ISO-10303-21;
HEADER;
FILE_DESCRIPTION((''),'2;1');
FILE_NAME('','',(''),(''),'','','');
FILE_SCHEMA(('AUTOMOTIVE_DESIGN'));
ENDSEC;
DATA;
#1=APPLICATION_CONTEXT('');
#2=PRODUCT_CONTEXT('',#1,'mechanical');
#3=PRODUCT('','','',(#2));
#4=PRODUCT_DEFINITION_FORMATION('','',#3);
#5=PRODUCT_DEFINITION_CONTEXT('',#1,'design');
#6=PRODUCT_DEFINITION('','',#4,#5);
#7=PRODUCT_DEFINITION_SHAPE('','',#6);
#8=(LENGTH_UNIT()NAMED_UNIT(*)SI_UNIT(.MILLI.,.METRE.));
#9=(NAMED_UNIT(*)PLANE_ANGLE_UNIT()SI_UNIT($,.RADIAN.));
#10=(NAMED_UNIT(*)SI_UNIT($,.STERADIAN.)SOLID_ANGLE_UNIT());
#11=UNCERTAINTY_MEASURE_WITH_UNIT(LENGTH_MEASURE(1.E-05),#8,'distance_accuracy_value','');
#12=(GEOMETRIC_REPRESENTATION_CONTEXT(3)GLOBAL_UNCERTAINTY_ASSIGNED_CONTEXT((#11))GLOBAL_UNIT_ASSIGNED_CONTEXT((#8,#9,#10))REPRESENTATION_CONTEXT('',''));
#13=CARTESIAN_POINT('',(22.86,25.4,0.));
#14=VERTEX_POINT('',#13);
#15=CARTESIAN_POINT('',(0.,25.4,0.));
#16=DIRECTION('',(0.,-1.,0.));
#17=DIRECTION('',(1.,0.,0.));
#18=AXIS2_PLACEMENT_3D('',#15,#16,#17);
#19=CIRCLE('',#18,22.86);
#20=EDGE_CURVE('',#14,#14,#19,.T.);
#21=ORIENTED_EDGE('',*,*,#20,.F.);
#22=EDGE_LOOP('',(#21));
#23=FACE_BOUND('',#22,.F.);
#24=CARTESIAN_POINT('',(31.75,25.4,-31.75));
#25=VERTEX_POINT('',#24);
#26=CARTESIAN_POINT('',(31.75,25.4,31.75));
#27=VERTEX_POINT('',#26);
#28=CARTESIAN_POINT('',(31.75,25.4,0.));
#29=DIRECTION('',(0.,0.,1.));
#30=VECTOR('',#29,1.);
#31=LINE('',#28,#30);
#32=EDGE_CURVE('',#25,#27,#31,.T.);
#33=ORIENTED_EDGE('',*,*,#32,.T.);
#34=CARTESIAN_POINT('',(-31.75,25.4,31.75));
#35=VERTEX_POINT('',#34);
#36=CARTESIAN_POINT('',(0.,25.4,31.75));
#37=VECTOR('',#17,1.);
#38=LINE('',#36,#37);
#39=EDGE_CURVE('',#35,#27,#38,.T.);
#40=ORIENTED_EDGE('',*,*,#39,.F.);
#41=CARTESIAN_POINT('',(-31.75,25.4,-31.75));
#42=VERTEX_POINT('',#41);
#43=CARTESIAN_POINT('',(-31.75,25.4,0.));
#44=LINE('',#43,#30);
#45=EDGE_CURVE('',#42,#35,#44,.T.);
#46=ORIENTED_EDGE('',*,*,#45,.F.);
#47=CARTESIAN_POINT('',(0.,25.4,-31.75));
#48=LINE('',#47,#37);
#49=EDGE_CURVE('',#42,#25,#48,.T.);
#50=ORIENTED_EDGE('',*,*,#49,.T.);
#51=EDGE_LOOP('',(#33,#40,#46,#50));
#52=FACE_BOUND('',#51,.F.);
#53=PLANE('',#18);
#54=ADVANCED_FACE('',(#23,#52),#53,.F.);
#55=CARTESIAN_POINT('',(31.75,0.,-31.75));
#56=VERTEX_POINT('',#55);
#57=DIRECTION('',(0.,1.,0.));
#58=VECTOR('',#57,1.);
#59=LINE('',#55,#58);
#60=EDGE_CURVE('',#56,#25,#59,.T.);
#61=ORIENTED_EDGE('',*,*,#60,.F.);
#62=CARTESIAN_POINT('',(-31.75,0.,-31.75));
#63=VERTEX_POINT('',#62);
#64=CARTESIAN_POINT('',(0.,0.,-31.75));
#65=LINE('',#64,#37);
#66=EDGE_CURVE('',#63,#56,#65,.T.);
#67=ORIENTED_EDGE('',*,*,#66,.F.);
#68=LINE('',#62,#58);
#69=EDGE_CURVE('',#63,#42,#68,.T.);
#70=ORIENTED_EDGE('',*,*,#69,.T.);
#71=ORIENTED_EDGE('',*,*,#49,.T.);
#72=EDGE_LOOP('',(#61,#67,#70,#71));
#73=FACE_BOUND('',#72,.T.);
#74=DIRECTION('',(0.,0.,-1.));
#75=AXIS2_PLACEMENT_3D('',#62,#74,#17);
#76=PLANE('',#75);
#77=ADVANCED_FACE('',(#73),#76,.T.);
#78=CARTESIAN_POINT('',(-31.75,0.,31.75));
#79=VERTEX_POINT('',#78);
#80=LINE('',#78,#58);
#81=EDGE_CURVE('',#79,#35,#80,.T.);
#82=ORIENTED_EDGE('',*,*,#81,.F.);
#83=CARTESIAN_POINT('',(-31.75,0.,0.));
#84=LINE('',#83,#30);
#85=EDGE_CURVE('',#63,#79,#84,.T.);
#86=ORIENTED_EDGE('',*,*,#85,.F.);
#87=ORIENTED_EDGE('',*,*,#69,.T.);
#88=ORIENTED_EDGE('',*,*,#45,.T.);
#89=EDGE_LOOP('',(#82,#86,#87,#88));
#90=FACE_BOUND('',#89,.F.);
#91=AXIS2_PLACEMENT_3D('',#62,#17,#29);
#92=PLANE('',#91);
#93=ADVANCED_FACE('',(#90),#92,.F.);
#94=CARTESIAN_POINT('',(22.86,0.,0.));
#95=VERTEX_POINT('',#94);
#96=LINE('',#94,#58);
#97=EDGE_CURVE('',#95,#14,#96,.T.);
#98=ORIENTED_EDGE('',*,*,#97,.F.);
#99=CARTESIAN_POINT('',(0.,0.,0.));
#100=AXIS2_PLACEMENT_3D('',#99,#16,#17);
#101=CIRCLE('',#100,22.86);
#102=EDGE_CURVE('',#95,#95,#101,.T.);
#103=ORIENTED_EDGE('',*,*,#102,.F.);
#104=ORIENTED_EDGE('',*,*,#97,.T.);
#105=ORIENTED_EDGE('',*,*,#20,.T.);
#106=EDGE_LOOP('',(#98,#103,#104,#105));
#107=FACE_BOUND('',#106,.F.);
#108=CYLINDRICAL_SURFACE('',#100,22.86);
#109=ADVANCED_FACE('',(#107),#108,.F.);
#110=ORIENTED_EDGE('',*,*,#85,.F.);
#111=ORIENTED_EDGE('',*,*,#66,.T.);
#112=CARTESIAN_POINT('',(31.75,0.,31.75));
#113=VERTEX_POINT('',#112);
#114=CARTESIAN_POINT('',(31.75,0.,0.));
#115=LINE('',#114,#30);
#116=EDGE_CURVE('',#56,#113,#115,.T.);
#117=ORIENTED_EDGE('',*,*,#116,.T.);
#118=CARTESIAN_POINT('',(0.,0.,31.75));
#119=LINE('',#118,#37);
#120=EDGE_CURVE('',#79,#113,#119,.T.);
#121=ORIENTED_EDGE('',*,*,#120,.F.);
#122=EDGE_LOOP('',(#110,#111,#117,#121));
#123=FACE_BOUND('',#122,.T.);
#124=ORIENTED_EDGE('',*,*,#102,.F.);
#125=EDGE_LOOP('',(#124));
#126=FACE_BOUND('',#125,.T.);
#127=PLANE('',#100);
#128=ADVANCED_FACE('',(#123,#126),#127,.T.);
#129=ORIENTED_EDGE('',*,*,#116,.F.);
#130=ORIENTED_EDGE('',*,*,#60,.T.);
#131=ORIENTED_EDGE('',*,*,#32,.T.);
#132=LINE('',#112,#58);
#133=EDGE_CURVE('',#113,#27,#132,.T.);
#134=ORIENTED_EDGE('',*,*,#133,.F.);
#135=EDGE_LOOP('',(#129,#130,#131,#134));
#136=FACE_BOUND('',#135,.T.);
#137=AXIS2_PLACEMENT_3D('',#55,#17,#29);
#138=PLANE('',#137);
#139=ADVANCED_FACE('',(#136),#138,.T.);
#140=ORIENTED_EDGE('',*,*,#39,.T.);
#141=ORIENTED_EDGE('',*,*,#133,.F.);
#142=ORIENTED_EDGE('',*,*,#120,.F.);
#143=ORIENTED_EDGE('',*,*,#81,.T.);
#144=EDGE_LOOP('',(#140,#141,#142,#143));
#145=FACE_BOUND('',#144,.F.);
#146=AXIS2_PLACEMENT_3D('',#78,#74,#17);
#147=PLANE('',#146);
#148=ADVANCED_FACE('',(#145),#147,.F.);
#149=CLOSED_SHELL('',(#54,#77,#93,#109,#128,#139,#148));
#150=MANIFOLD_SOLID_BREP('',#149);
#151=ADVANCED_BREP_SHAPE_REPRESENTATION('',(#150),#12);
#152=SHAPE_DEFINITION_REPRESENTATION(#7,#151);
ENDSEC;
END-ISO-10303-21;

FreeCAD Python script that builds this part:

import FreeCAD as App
import Part
import Sketcher
from FreeCAD import Vector
Q = App.Units.Quantity


def add_polygon(sketch, points):
    """Adds a closed chain of lines whose ends are joined by coincident constraints."""
    first, n = sketch.GeometryCount, len(points)
    for a, b in zip(points, points[1:] + points[:1]):
        sketch.addGeometry(Part.LineSegment(App.Vector(*a, 0), App.Vector(*b, 0)), False)
    for i in range(n):
        sketch.addConstraint(Sketcher.Constraint("Coincident", first + i, 2, first + (i + 1) % n, 1))

doc = App.newDocument("Part")
body = doc.addObject("PartDesign::Body", "Body")

# Sketch on XZ plane
sketch1 = body.newObject("Sketcher::SketchObject", "Sketch")
sketch1.AttachmentSupport = (doc.getObject("XZ_Plane"), [""])
sketch1.MapMode = "FlatFace"
add_polygon(sketch1, [(-32, 32), (-32, -32), (32, -32), (32, 32)])  # lines 0-3
sketch1.addGeometry(Part.Circle(Vector(0, 0, 0), Vector(0, 0, 1), 23), False)  # 4
sketch1.addConstraint([
    Sketcher.Constraint("Vertical", 0),
    Sketcher.Constraint("Horizontal", 1),
    Sketcher.Constraint("Vertical", 2),
    Sketcher.Constraint("Horizontal", 3),
    Sketcher.Constraint("Coincident", 4, 3, -1, 1),
    Sketcher.Constraint("Symmetric", 0, 2, 2, 2, -1, 1),
    Sketcher.Constraint("Equal", 3, 0),
    Sketcher.Constraint("Diameter", 4, Q("1.8 in")),
    Sketcher.Constraint("DistanceX", 1, 1, 1, 2, Q("2.5 in")),
])
pad1 = body.newObject("PartDesign::Pad", "Pad")
pad1.Profile = sketch1
pad1.Length = Q("1 in")
pad1.Reversed = True

doc.recompute()
